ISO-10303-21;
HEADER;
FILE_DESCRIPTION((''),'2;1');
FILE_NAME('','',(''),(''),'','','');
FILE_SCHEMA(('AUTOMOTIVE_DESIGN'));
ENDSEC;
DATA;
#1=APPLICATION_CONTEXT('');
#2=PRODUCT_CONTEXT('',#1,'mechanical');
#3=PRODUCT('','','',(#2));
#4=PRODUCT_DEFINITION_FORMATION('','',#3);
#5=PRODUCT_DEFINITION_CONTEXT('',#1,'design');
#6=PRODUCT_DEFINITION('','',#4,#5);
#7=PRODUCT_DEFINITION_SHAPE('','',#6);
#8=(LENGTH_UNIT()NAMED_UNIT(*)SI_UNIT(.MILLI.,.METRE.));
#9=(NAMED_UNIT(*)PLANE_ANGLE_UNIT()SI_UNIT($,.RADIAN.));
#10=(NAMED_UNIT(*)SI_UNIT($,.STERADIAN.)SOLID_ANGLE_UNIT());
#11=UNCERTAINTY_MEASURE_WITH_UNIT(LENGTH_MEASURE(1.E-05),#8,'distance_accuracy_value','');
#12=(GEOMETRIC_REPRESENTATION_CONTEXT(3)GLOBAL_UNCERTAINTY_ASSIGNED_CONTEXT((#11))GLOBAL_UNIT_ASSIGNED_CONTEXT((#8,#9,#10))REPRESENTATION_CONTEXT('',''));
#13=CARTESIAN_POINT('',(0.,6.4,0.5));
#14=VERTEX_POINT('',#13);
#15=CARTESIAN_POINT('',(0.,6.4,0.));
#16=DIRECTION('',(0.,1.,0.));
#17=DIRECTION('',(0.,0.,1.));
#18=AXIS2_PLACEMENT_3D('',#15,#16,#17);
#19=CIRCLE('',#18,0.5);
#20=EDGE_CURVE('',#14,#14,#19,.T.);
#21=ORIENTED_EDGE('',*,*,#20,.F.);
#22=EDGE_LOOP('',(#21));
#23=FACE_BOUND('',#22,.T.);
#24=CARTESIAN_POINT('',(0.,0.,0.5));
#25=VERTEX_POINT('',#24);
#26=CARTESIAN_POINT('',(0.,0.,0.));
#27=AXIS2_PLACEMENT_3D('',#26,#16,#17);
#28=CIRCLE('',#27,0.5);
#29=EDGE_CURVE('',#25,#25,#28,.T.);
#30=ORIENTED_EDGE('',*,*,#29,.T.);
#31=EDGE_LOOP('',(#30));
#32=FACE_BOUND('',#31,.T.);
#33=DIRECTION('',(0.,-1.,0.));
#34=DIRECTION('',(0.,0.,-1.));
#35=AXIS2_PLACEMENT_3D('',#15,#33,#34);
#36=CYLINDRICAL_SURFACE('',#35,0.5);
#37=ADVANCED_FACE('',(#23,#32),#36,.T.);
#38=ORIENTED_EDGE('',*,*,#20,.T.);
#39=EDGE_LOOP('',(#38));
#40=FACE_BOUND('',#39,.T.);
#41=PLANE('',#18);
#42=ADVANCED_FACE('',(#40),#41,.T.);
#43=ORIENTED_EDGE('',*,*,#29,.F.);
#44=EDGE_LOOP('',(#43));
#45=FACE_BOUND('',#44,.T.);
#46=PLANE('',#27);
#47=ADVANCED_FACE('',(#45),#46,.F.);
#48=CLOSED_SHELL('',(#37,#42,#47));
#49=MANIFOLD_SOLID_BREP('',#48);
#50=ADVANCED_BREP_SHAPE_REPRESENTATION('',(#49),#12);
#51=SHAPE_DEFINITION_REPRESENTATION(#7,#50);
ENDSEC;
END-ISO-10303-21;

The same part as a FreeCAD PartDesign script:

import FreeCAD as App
import Part
import Sketcher

V = App.Vector
Q = App.Units.Quantity

doc = App.newDocument("Part")
params = doc.addObject("Spreadsheet::Sheet", "Params")
for row, (alias, value) in enumerate([
    ("sketch1_diameter", "1 mm"),
    ("pad1_length", "6.4 mm"),
], start=1):
    params.set(f"A{row}", alias)
    params.set(f"B{row}", "=" + value)
    params.setAlias(f"B{row}", alias)

body = doc.addObject("PartDesign::Body", "Body")

sketch1 = doc.addObject("Sketcher::SketchObject", "Sketch")
body.addObject(sketch1)
sketch1.AttachmentSupport = (doc.XZ_Plane, [""])
sketch1.MapMode = "FlatFace"
sketch1.addGeometry(Part.Circle(V(0, 0, 0), V(0, 0, 1), 0.5), False)
sketch1.addConstraint([
    Sketcher.Constraint("Coincident", 0, 3, -1, 1),
    Sketcher.Constraint("Diameter", 0, Q("1 mm")),
])
sketch1.setExpression("Constraints[1]", "Params.sketch1_diameter")
pad1 = doc.addObject("PartDesign::Pad", "Pad")
body.addObject(pad1)
pad1.Profile = sketch1
pad1.setExpression("Length", "Params.pad1_length")
pad1.Reversed = True

doc.recompute()
